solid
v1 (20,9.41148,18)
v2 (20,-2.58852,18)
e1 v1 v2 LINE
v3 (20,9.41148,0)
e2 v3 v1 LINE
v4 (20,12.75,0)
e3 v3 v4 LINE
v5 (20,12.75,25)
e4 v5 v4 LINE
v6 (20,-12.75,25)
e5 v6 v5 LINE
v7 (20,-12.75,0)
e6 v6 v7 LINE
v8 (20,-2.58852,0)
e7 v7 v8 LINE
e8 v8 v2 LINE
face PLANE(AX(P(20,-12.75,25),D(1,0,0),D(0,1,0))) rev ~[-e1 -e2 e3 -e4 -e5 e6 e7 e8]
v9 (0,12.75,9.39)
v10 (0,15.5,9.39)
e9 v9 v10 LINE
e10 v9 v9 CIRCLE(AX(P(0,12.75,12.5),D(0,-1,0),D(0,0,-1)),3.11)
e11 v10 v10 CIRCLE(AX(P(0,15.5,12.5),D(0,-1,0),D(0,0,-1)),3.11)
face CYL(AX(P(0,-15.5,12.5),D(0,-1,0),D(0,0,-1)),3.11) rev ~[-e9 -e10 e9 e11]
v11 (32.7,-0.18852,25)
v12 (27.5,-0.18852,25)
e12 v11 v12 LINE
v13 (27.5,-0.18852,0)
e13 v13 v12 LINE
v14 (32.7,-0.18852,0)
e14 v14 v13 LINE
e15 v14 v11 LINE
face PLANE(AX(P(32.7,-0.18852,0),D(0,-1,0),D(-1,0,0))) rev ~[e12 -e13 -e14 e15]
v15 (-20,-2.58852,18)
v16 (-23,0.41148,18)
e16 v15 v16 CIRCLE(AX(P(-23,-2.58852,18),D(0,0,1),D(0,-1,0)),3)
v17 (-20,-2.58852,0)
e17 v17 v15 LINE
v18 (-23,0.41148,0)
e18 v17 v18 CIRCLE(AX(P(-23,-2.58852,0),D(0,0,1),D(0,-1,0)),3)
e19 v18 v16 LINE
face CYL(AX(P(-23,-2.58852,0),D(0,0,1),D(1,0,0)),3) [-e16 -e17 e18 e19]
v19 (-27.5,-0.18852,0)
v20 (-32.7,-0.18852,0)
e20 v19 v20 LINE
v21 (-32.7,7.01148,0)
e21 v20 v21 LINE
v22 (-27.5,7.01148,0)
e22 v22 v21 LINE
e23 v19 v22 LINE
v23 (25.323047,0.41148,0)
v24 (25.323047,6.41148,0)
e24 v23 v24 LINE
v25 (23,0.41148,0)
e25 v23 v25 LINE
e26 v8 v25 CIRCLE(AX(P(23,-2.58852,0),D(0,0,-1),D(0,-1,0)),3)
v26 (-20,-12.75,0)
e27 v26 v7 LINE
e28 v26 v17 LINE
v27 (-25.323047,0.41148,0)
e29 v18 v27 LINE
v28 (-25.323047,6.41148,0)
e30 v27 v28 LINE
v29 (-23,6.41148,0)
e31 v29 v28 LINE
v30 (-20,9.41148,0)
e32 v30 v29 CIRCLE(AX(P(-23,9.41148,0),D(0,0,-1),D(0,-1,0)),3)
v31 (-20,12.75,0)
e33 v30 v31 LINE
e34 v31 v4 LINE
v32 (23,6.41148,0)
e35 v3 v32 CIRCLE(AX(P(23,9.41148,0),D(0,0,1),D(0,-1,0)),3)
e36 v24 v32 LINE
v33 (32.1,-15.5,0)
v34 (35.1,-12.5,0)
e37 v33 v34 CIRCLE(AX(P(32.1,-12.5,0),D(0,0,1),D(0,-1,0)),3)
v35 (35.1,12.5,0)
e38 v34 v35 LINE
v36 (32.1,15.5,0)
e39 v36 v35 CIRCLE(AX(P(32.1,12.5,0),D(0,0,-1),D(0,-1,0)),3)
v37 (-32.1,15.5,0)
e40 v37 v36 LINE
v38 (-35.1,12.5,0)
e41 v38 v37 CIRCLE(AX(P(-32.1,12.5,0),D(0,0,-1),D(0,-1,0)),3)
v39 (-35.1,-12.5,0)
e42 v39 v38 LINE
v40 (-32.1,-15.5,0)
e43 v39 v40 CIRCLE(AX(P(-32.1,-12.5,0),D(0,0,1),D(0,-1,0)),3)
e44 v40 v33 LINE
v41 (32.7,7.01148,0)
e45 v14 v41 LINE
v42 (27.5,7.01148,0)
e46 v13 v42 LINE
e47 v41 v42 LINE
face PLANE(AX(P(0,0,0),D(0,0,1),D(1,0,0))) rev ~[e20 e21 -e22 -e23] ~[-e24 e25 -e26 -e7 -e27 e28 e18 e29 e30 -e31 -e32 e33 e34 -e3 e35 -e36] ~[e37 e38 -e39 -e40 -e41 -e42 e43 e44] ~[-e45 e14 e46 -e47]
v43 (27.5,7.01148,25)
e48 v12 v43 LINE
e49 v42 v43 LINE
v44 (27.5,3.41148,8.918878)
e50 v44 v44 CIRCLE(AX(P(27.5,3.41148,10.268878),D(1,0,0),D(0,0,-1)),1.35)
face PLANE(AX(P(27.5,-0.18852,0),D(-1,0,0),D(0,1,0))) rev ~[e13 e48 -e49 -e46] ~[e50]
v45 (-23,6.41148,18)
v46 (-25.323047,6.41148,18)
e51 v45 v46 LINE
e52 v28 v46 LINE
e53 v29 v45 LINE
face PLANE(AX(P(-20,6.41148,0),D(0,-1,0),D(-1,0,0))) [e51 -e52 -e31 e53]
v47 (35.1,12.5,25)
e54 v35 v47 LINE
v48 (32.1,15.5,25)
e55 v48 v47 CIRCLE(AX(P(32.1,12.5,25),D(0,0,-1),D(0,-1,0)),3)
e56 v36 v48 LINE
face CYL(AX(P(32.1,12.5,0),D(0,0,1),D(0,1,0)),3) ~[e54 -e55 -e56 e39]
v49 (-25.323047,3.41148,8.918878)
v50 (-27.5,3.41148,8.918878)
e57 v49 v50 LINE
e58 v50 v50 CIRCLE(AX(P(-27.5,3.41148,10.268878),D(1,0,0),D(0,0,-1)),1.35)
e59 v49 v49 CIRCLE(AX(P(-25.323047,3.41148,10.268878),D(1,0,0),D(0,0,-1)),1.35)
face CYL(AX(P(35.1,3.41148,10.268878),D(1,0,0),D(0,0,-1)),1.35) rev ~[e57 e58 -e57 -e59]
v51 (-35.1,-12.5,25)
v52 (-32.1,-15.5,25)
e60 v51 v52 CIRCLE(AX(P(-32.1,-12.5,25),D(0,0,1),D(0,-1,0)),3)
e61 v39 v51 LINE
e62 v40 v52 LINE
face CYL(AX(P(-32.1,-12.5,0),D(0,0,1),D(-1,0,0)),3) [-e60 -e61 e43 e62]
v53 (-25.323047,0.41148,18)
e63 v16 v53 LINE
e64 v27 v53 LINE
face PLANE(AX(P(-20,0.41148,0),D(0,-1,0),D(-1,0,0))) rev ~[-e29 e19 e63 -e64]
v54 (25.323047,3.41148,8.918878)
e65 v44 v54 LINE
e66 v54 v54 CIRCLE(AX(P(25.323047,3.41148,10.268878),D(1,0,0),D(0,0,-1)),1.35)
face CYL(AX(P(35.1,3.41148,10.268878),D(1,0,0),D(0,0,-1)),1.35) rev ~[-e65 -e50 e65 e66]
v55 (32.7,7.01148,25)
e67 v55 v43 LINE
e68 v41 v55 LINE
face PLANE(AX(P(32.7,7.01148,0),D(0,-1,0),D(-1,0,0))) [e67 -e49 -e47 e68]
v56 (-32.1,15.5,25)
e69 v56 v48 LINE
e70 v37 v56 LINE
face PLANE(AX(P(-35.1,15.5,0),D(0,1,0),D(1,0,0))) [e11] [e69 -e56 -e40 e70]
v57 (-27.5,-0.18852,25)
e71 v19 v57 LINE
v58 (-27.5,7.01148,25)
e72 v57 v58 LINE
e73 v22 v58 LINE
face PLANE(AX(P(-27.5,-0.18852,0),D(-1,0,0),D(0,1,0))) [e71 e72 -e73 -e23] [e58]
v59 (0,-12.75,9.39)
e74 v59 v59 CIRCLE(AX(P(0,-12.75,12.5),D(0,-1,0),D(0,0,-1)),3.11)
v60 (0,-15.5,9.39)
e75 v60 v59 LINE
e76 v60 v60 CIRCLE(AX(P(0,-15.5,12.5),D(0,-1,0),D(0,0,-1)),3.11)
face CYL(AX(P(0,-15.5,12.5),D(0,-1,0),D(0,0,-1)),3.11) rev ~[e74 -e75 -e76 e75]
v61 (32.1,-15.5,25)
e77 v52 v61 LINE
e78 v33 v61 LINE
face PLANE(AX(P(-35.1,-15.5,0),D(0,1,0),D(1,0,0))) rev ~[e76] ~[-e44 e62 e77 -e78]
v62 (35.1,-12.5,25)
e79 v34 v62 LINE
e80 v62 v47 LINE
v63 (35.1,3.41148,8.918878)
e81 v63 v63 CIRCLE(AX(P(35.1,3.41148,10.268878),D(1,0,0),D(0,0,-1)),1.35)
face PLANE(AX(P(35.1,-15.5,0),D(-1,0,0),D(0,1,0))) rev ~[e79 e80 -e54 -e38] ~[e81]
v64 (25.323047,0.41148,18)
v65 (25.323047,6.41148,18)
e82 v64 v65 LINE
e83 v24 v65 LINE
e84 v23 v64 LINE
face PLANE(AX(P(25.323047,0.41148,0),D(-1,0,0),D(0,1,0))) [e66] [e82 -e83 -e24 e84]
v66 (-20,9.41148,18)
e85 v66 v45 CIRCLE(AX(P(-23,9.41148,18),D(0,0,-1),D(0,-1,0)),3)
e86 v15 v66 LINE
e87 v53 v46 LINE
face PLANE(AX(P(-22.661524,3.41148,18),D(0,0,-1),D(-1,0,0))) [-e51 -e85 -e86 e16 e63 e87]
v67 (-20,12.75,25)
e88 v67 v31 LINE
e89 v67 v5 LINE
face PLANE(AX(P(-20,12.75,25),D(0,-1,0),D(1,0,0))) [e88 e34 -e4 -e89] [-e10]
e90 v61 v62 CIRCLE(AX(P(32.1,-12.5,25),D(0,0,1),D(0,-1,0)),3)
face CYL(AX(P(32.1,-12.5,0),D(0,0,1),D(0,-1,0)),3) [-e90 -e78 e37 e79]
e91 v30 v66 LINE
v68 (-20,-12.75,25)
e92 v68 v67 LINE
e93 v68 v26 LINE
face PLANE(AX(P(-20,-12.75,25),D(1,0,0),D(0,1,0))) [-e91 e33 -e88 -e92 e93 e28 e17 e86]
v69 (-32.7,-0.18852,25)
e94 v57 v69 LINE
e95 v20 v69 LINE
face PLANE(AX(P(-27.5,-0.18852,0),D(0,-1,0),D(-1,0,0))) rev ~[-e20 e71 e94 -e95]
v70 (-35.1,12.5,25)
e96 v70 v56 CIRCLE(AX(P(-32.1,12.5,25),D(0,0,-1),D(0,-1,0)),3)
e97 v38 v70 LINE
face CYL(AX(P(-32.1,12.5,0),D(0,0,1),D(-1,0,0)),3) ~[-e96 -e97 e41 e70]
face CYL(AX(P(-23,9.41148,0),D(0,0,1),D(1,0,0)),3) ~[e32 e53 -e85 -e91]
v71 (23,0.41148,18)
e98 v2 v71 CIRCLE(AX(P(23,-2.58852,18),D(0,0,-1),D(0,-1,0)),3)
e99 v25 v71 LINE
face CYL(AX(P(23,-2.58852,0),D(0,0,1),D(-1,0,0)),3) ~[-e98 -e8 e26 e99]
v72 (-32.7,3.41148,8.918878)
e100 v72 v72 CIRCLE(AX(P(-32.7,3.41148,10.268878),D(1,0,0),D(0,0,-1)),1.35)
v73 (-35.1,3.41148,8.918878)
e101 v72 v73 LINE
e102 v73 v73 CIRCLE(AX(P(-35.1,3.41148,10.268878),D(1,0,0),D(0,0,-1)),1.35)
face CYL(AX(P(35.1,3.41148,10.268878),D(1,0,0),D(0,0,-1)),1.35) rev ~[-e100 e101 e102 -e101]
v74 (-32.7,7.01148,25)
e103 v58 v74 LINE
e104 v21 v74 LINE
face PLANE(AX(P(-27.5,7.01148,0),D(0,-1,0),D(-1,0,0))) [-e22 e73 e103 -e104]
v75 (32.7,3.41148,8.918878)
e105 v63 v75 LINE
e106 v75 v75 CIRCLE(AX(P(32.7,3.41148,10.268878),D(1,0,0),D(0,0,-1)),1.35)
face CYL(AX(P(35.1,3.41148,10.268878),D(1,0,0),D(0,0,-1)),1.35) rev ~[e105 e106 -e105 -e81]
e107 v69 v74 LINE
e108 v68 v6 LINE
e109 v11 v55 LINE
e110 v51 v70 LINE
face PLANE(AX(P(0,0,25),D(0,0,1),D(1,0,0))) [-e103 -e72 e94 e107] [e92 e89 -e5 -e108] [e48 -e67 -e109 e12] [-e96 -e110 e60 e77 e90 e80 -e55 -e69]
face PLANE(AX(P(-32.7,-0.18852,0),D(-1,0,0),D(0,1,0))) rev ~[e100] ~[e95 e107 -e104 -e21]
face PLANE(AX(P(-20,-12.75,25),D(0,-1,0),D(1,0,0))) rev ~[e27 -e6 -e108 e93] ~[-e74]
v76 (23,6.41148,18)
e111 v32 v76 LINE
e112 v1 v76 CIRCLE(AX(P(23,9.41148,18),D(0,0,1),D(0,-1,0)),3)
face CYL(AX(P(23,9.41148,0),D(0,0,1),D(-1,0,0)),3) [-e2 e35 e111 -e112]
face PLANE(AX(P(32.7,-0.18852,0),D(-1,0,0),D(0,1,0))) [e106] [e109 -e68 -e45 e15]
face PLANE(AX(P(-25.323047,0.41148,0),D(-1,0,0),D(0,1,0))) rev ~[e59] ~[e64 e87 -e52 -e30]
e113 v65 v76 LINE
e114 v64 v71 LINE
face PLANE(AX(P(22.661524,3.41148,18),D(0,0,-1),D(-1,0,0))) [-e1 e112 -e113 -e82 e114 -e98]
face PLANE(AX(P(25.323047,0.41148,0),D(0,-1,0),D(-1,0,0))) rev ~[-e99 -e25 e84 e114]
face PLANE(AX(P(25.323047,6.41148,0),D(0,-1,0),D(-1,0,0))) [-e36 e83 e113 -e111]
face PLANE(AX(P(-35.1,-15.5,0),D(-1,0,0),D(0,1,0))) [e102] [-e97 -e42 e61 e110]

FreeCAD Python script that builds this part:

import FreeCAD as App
import Part
import Sketcher
Q = App.Units.Quantity


def edges_at(feature, points):
    """Names of the edges that pass closest to the given points."""
    edges = feature.Shape.Edges
    near = lambda p: min(range(len(edges)), key=lambda i: edges[i].distToShape(Part.Vertex(*p))[0])
    return sorted({f"Edge{near(p) + 1}" for p in points})

doc = App.newDocument("Part")
body = doc.addObject("PartDesign::Body", "Body")

sketch1 = body.newObject("Sketcher::SketchObject", "Sketch")
sketch1.AttachmentSupport = (doc.getObject("XY_Plane"), [""])
sketch1.MapMode = "FlatFace"
sketch1.addGeometry([
    Part.LineSegment(App.Vector(-35, 16, 0), App.Vector(-35, -16, 0)),
    Part.LineSegment(App.Vector(-35, -16, 0), App.Vector(35, -16, 0)),
    Part.LineSegment(App.Vector(35, -16, 0), App.Vector(35, 16, 0)),
    Part.LineSegment(App.Vector(35, 16, 0), App.Vector(-35, 16, 0)),
], False)
sketch1.addConstraint([
    Sketcher.Constraint("Coincident", 0, 2, 1, 1),
    Sketcher.Constraint("Coincident", 1, 2, 2, 1),
    Sketcher.Constraint("Coincident", 2, 2, 3, 1),
    Sketcher.Constraint("Coincident", 3, 2, 0, 1),
    Sketcher.Constraint("Vertical", 0),
    Sketcher.Constraint("Horizontal", 1),
    Sketcher.Constraint("Vertical", 2),
    Sketcher.Constraint("Horizontal", 3),
    Sketcher.Constraint("Symmetric", 0, 2, 2, 2, -1, 1),
    Sketcher.Constraint("DistanceY", 0, 2, 0, 1, Q("31 mm")),
    Sketcher.Constraint("DistanceX", 1, 1, 1, 2, Q("70.2 mm")),
])
pad1 = body.newObject("PartDesign::Pad", "Pad")
pad1.Profile = sketch1
pad1.Length = 25

sketch2 = body.newObject("Sketcher::SketchObject", "Sketch001")
sketch2.AttachmentSupport = (doc.getObject("XY_Plane"), [""])
sketch2.MapMode = "FlatFace"
sketch2.AttachmentOffset = App.Placement(App.Vector(0, 0, 25), App.Rotation())
sketch2.addGeometry([
    Part.LineSegment(App.Vector(-20, 13, 0), App.Vector(-20, -13, 0)),
    Part.LineSegment(App.Vector(-20, -13, 0), App.Vector(20, -13, 0)),
    Part.LineSegment(App.Vector(20, -13, 0), App.Vector(20, 13, 0)),
    Part.LineSegment(App.Vector(20, 13, 0), App.Vector(-20, 13, 0)),
], False)
sketch2.addConstraint([
    Sketcher.Constraint("Coincident", 0, 2, 1, 1),
    Sketcher.Constraint("Coincident", 1, 2, 2, 1),
    Sketcher.Constraint("Coincident", 2, 2, 3, 1),
    Sketcher.Constraint("Coincident", 3, 2, 0, 1),
    Sketcher.Constraint("Vertical", 0),
    Sketcher.Constraint("Horizontal", 1),
    Sketcher.Constraint("Vertical", 2),
    Sketcher.Constraint("Horizontal", 3),
    Sketcher.Constraint("Symmetric", 0, 2, 2, 2, -1, 1),
    Sketcher.Constraint("DistanceX", 1, 1, 1, 2, Q("40 mm")),
    Sketcher.Constraint("DistanceY", 0, 2, 0, 1, Q("25.5 mm")),
])
pocket1 = body.newObject("PartDesign::Pocket", "Pocket")
pocket1.Profile = sketch2
pocket1.Length = 32

sketch3 = body.newObject("Sketcher::SketchObject", "Sketch002")
sketch3.AttachmentSupport = (doc.getObject("XZ_Plane"), [""])
sketch3.MapMode = "FlatFace"
sketch3.AttachmentOffset = App.Placement(App.Vector(0, 0, 15.5), App.Rotation())
sketch3.addGeometry(Part.Circle(App.Vector(0, 12.5, 0), App.Vector(0, 0, 1), 3.1), False)
sketch3.addConstraint([
    Sketcher.Constraint("PointOnObject", 0, 3, -2),
    Sketcher.Constraint("Diameter", 0, Q("6.22 mm")),
    Sketcher.Constraint("DistanceY", -1, 1, 0, 3, Q("12.5 mm")),
])
pocket2 = body.newObject("PartDesign::Pocket", "Pocket001")
pocket2.Profile = sketch3
pocket2.Length = 41

sketch4 = body.newObject("Sketcher::SketchObject", "Sketch003")
sketch4.AttachmentSupport = (doc.getObject("XY_Plane"), [""])
sketch4.MapMode = "FlatFace"
sketch4.addGeometry([
    Part.LineSegment(App.Vector(-28, 7, 0), App.Vector(-28, 0, 0)),
    Part.LineSegment(App.Vector(-28, 0, 0), App.Vector(-33, 0, 0)),
    Part.LineSegment(App.Vector(-33, 0, 0), App.Vector(-33, 7, 0)),
    Part.LineSegment(App.Vector(-33, 7, 0), App.Vector(-28, 7, 0)),
    Part.LineSegment(App.Vector(33, 7, 0), App.Vector(33, 0, 0)),
    Part.LineSegment(App.Vector(33, 0, 0), App.Vector(28, 0, 0)),
    Part.LineSegment(App.Vector(28, 0, 0), App.Vector(28, 7, 0)),
    Part.LineSegment(App.Vector(28, 7, 0), App.Vector(33, 7, 0)),
], False)
sketch4.addConstraint([
    Sketcher.Constraint("Coincident", 0, 2, 1, 1),
    Sketcher.Constraint("Coincident", 1, 2, 2, 1),
    Sketcher.Constraint("Coincident", 2, 2, 3, 1),
    Sketcher.Constraint("Coincident", 3, 2, 0, 1),
    Sketcher.Constraint("Coincident", 4, 2, 5, 1),
    Sketcher.Constraint("Coincident", 5, 2, 6, 1),
    Sketcher.Constraint("Coincident", 6, 2, 7, 1),
    Sketcher.Constraint("Coincident", 7, 2, 4, 1),
    Sketcher.Constraint("Vertical", 0),
    Sketcher.Constraint("Horizontal", 1),
    Sketcher.Constraint("Vertical", 2),
    Sketcher.Constraint("Horizontal", 3),
    Sketcher.Constraint("Vertical", 4),
    Sketcher.Constraint("Horizontal", 5),
    Sketcher.Constraint("Vertical", 6),
    Sketcher.Constraint("Horizontal", 7),
    Sketcher.Constraint("Symmetric", 1, 2, 4, 2, -2),
    Sketcher.Constraint("Symmetric", 3, 2, 6, 2, -2),
    Sketcher.Constraint("DistanceX", 1, 2, 1, 1, Q("5.2 mm")),
    Sketcher.Constraint("DistanceY", 0, 2, 0, 1, Q("7.2 mm")),
    Sketcher.Constraint("DistanceX", 0, 2, 5, 2, Q("55 mm")),
    Sketcher.Constraint("DistanceY", 0, 2, -1, 1, Q("0.18852 mm")),
])
pocket3 = body.newObject("PartDesign::Pocket", "Pocket002")
pocket3.Profile = sketch4
pocket3.Length = 25
pocket3.Reversed = True

sketch5 = body.newObject("Sketcher::SketchObject", "Sketch004")
sketch5.AttachmentSupport = (doc.getObject("YZ_Plane"), [""])
sketch5.MapMode = "FlatFace"
sketch5.AttachmentOffset = App.Placement(App.Vector(0, 0, 35.1), App.Rotation())
sketch5.addGeometry(Part.Circle(App.Vector(3.4, 10.3, 0), App.Vector(0, 0, 1), 1.4), False)
sketch5.addConstraint([
    Sketcher.Constraint("Diameter", 0, Q("2.7 mm")),
    Sketcher.Constraint("DistanceX", -1, 1, 0, 3, Q("3.41148 mm")),
    Sketcher.Constraint("DistanceY", -1, 1, 0, 3, Q("10.268878 mm")),
])
pocket4 = body.newObject("PartDesign::Pocket", "Pocket003")
pocket4.Profile = sketch5
pocket4.Length = 122
doc.recompute()

fillet = body.newObject("PartDesign::Fillet", "Fillet")
fillet.Base = (pocket4, edges_at(pocket4, [
    (35.1, -15.5, 12.5),
    (-35.1, -15.5, 12.5),
    (-35.1, 15.5, 12.5),
    (35.1, 15.5, 12.5),
]))
fillet.Radius = 3

sketch6 = body.newObject("Sketcher::SketchObject", "Sketch005")
sketch6.AttachmentSupport = (doc.getObject("XY_Plane"), [""])
sketch6.MapMode = "FlatFace"
sketch6.addGeometry([
    Part.LineSegment(App.Vector(25, 6, 0), App.Vector(25, 0, 0)),
    Part.LineSegment(App.Vector(25, 0, 0), App.Vector(20, 0, 0)),
    Part.LineSegment(App.Vector(20, 0, 0), App.Vector(20, 6, 0)),
    Part.LineSegment(App.Vector(20, 6, 0), App.Vector(25, 6, 0)),
    Part.LineSegment(App.Vector(-20, 6, 0), App.Vector(-20, 0, 0)),
    Part.LineSegment(App.Vector(-20, 0, 0), App.Vector(-25, 0, 0)),
    Part.LineSegment(App.Vector(-25, 0, 0), App.Vector(-25, 6, 0)),
    Part.LineSegment(App.Vector(-25, 6, 0), App.Vector(-20, 6, 0)),
], False)
sketch6.addConstraint([
    Sketcher.Constraint("Coincident", 0, 2, 1, 1),
    Sketcher.Constraint("Coincident", 1, 2, 2, 1),
    Sketcher.Constraint("Coincident", 2, 2, 3, 1),
    Sketcher.Constraint("Coincident", 3, 2, 0, 1),
    Sketcher.Constraint("Coincident", 4, 2, 5, 1),
    Sketcher.Constraint("Coincident", 5, 2, 6, 1),
    Sketcher.Constraint("Coincident", 6, 2, 7, 1),
    Sketcher.Constraint("Coincident", 7, 2, 4, 1),
    Sketcher.Constraint("Vertical", 0),
    Sketcher.Constraint("Horizontal", 1),
    Sketcher.Constraint("Vertical", 2),
    Sketcher.Constraint("Horizontal", 3),
    Sketcher.Constraint("Vertical", 4),
    Sketcher.Constraint("Horizontal", 5),
    Sketcher.Constraint("Vertical", 6),
    Sketcher.Constraint("Horizontal", 7),
    Sketcher.Constraint("Symmetric", 1, 2, 4, 2, -2),
    Sketcher.Constraint("Symmetric", 3, 2, 6, 2, -2),
    Sketcher.Constraint("DistanceY", 0, 2, 0, 1, Q("6 mm")),
    Sketcher.Constraint("DistanceX", -1, 1, 1, 2, Q("20 mm")),
    Sketcher.Constraint("DistanceX", 1, 2, 1, 1, Q("5.323047 mm")),
    Sketcher.Constraint("DistanceY", -1, 1, 0, 2, Q("0.41148 mm")),
])
pocket5 = body.newObject("PartDesign::Pocket", "Pocket004")
pocket5.Profile = sketch6
pocket5.Length = 18
pocket5.Reversed = True
doc.recompute()

fillet2 = body.newObject("PartDesign::Fillet", "Fillet001")
fillet2.Base = (pocket5, edges_at(pocket5, [
    (20, 6.411, 9),
    (20, 0.411, 9),
    (-20, 0.411, 9),
    (-20, 6.411, 9),
]))
fillet2.Radius = 3

doc.recompute()
